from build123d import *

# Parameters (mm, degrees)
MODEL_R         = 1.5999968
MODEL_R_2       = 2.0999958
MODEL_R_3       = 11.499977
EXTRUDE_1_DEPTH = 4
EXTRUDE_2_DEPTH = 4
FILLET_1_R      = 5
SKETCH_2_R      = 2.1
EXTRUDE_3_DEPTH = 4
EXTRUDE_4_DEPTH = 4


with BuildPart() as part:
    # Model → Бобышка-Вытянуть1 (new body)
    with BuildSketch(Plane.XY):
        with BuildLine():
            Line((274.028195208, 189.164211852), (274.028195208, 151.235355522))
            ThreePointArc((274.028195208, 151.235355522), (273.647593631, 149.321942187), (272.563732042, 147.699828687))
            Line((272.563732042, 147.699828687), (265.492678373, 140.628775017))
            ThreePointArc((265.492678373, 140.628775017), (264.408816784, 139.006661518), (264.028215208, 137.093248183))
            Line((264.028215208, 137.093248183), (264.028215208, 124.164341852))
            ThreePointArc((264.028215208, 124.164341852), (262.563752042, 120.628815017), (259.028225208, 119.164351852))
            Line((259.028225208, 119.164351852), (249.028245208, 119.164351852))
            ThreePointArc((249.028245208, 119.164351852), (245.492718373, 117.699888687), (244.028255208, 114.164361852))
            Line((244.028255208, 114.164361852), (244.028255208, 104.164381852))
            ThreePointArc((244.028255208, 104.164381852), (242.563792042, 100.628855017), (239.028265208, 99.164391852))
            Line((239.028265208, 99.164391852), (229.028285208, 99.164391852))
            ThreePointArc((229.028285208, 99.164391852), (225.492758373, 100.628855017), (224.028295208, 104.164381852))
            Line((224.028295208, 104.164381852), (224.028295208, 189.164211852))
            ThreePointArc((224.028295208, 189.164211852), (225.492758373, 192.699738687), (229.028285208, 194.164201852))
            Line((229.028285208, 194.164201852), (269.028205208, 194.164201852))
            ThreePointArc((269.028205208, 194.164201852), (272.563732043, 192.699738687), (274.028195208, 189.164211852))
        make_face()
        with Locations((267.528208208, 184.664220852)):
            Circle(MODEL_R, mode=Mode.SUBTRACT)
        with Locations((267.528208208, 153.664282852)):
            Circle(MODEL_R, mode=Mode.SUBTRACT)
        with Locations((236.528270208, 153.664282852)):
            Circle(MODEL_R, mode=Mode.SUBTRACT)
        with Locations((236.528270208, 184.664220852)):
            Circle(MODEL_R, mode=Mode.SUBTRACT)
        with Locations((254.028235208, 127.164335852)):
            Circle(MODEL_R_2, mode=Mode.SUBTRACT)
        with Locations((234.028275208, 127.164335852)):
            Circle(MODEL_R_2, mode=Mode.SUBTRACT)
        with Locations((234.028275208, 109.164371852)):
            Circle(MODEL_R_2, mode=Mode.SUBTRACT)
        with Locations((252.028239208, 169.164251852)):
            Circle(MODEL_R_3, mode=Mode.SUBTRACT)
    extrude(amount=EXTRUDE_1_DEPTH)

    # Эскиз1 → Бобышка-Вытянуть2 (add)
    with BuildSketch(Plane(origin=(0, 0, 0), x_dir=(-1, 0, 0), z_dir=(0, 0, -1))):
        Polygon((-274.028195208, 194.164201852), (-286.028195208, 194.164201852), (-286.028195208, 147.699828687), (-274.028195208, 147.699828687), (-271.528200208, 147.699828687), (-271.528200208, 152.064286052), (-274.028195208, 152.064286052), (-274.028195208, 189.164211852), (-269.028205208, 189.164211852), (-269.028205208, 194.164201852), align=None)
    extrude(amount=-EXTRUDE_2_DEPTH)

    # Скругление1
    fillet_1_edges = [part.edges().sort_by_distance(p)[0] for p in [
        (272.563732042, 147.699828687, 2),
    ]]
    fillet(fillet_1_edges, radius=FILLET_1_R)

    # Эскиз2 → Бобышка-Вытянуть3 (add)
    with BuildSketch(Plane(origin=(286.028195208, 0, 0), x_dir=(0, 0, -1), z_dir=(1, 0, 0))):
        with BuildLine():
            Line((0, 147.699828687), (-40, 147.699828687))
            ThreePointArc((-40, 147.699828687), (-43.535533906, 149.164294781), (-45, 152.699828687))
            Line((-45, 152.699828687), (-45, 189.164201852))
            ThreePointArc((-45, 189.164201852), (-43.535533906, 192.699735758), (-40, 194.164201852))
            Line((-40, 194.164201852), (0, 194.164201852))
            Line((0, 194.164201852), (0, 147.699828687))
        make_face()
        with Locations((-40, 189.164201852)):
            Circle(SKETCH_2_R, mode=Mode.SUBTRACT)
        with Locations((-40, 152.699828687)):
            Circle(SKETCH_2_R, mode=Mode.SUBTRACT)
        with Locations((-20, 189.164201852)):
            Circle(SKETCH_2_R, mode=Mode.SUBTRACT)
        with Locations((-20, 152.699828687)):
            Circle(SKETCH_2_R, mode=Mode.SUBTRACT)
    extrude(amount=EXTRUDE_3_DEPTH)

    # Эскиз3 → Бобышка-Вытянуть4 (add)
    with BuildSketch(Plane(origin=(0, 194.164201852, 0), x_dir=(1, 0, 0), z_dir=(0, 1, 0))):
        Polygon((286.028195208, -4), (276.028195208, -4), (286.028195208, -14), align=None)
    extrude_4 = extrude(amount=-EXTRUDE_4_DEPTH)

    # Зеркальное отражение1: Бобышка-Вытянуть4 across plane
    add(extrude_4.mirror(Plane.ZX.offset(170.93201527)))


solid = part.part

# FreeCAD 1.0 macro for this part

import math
import FreeCAD as App
import Part
import Sketcher
Q = App.Units.Quantity


def edges_at(feature, points):
    """Names of the edges that pass closest to the given points."""
    edges = feature.Shape.Edges
    near = lambda p: min(range(len(edges)), key=lambda i: edges[i].distToShape(Part.Vertex(*p))[0])
    return sorted({f"Edge{near(p) + 1}" for p in points})


def add_polygon(sketch, points):
    """Adds a closed chain of lines whose ends are joined by coincident constraints."""
    first, n = sketch.GeometryCount, len(points)
    for a, b in zip(points, points[1:] + points[:1]):
        sketch.addGeometry(Part.LineSegment(App.Vector(*a, 0), App.Vector(*b, 0)), False)
    for i in range(n):
        sketch.addConstraint(Sketcher.Constraint("Coincident", first + i, 2, first + (i + 1) % n, 1))

doc = App.newDocument("Part")
body = doc.addObject("PartDesign::Body", "Body")

sketch1 = body.newObject("Sketcher::SketchObject", "Sketch")
sketch1.AttachmentSupport = (doc.getObject("XY_Plane"), [""])
sketch1.MapMode = "FlatFace"
sketch1.addGeometry(Part.LineSegment(App.Vector(274.028195, 151.235356, 0), App.Vector(274.028195, 189.164212, 0)), False)
sketch1.addGeometry(Part.ArcOfCircle(Part.Circle(App.Vector(269.028205, 189.164212, 0), App.Vector(0, 0, 1), 4.99999), math.radians(0), math.radians(90)), False)
sketch1.addGeometry(Part.LineSegment(App.Vector(269.028205, 194.164202, 0), App.Vector(229.028285, 194.164202, 0)), False)
sketch1.addGeometry(Part.ArcOfCircle(Part.Circle(App.Vector(229.028285, 189.164212, 0), App.Vector(0, 0, 1), 4.99999), math.radians(90), math.radians(180)), False)
sketch1.addGeometry(Part.LineSegment(App.Vector(224.028295, 189.164212, 0), App.Vector(224.028295, 104.164382, 0)), False)
sketch1.addGeometry(Part.ArcOfCircle(Part.Circle(App.Vector(229.028285, 104.164382, 0), App.Vector(0, 0, 1), 4.99999), math.radians(180), math.radians(270)), False)
sketch1.addGeometry(Part.LineSegment(App.Vector(229.028285, 99.164392, 0), App.Vector(239.028265, 99.164392, 0)), False)
sketch1.addGeometry(Part.ArcOfCircle(Part.Circle(App.Vector(239.028265, 104.164382, 0), App.Vector(0, 0, 1), 4.99999), math.radians(-90), math.radians(0)), False)
sketch1.addGeometry(Part.LineSegment(App.Vector(244.028255, 104.164382, 0), App.Vector(244.028255, 114.164362, 0)), False)
sketch1.addGeometry(Part.ArcOfCircle(Part.Circle(App.Vector(249.028245, 114.164362, 0), App.Vector(0, 0, 1), 4.99999), math.radians(90), math.radians(180)), False)
sketch1.addGeometry(Part.LineSegment(App.Vector(249.028245, 119.164352, 0), App.Vector(259.028225, 119.164352, 0)), False)
sketch1.addGeometry(Part.ArcOfCircle(Part.Circle(App.Vector(259.028225, 124.164342, 0), App.Vector(0, 0, 1), 4.99999), math.radians(-90), math.radians(0)), False)
sketch1.addGeometry(Part.LineSegment(App.Vector(264.028215, 124.164342, 0), App.Vector(264.028215, 137.093248, 0)), False)
sketch1.addGeometry(Part.ArcOfCircle(Part.Circle(App.Vector(269.028205, 137.093248, 0), App.Vector(0, 0, 1), 4.99999), math.radians(135), math.radians(180)), False)
sketch1.addGeometry(Part.LineSegment(App.Vector(265.492678, 140.628775, 0), App.Vector(272.563732, 147.699829, 0)), False)
sketch1.addGeometry(Part.ArcOfCircle(Part.Circle(App.Vector(269.028205, 151.235356, 0), App.Vector(0, 0, 1), 4.99999), math.radians(-45), math.radians(0)), False)
sketch1.addGeometry(Part.Circle(App.Vector(254.028235, 127.164336, 0), App.Vector(0, 0, 1), 2.099996), False)
sketch1.addGeometry(Part.Circle(App.Vector(234.028275, 109.164372, 0), App.Vector(0, 0, 1), 2.099996), False)
sketch1.addGeometry(Part.Circle(App.Vector(234.028275, 127.164336, 0), App.Vector(0, 0, 1), 2.099996), False)
sketch1.addGeometry(Part.Circle(App.Vector(267.528208, 153.664283, 0), App.Vector(0, 0, 1), 1.599997), False)
sketch1.addGeometry(Part.Circle(App.Vector(267.528208, 184.664221, 0), App.Vector(0, 0, 1), 1.599997), False)
sketch1.addGeometry(Part.Circle(App.Vector(252.028239, 169.164252, 0), App.Vector(0, 0, 1), 11.499977), False)
sketch1.addGeometry(Part.Circle(App.Vector(236.52827, 153.664283, 0), App.Vector(0, 0, 1), 1.599997), False)
sketch1.addGeometry(Part.Circle(App.Vector(236.52827, 184.664221, 0), App.Vector(0, 0, 1), 1.599997), False)
sketch1.addConstraint(Sketcher.Constraint("Tangent", 0, 2, 1, 1))
sketch1.addConstraint(Sketcher.Constraint("Tangent", 1, 2, 2, 1))
sketch1.addConstraint(Sketcher.Constraint("Tangent", 2, 2, 3, 1))
sketch1.addConstraint(Sketcher.Constraint("Tangent", 3, 2, 4, 1))
sketch1.addConstraint(Sketcher.Constraint("Tangent", 4, 2, 5, 1))
sketch1.addConstraint(Sketcher.Constraint("Tangent", 5, 2, 6, 1))
sketch1.addConstraint(Sketcher.Constraint("Tangent", 6, 2, 7, 1))
sketch1.addConstraint(Sketcher.Constraint("Tangent", 7, 2, 8, 1))
sketch1.addConstraint(Sketcher.Constraint("Tangent", 8, 2, 9, 2))
sketch1.addConstraint(Sketcher.Constraint("Tangent", 9, 1, 10, 1))
sketch1.addConstraint(Sketcher.Constraint("Tangent", 10, 2, 11, 1))
sketch1.addConstraint(Sketcher.Constraint("Tangent", 11, 2, 12, 1))
sketch1.addConstraint(Sketcher.Constraint("Tangent", 12, 2, 13, 2))
sketch1.addConstraint(Sketcher.Constraint("Tangent", 13, 1, 14, 1))
sketch1.addConstraint(Sketcher.Constraint("Tangent", 14, 2, 15, 1))
sketch1.addConstraint(Sketcher.Constraint("Tangent", 15, 2, 0, 1))
sketch1.addConstraint(Sketcher.Constraint("Vertical", 0))
sketch1.addConstraint(Sketcher.Constraint("Horizontal", 2))
sketch1.addConstraint(Sketcher.Constraint("Vertical", 4))
sketch1.addConstraint(Sketcher.Constraint("Horizontal", 6))
sketch1.addConstraint(Sketcher.Constraint("Vertical", 8))
sketch1.addConstraint(Sketcher.Constraint("Horizontal", 10))
sketch1.addConstraint(Sketcher.Constraint("Vertical", 12))
sketch1.addConstraint(Sketcher.Constraint("Equal", 1, 3))
sketch1.addConstraint(Sketcher.Constraint("Equal", 3, 5))
sketch1.addConstraint(Sketcher.Constraint("Equal", 5, 7))
sketch1.addConstraint(Sketcher.Constraint("Equal", 7, 9))
sketch1.addConstraint(Sketcher.Constraint("Equal", 9, 11))
sketch1.addConstraint(Sketcher.Constraint("Equal", 11, 13))
sketch1.addConstraint(Sketcher.Constraint("Equal", 13, 15))
sketch1.addConstraint(Sketcher.Constraint("Equal", 16, 17))
sketch1.addConstraint(Sketcher.Constraint("Equal", 17, 18))
sketch1.addConstraint(Sketcher.Constraint("Equal", 19, 20))
sketch1.addConstraint(Sketcher.Constraint("Equal", 20, 22))
sketch1.addConstraint(Sketcher.Constraint("Equal", 22, 23))
sketch1.addConstraint(Sketcher.Constraint("Horizontal", 16, 3, 18, 3))
sketch1.addConstraint(Sketcher.Constraint("Horizontal", 19, 3, 22, 3))
sketch1.addConstraint(Sketcher.Constraint("Horizontal", 20, 3, 23, 3))
sketch1.addConstraint(Sketcher.Constraint("Vertical", 1, 3, 13, 3))
sketch1.addConstraint(Sketcher.Constraint("Vertical", 17, 3, 18, 3))
sketch1.addConstraint(Sketcher.Constraint("Vertical", 19, 3, 20, 3))
sketch1.addConstraint(Sketcher.Constraint("Vertical", 22, 3, 23, 3))
sketch1.addConstraint(Sketcher.Constraint("Equal", 6, 10))
sketch1.addConstraint(Sketcher.Constraint("Equal", 10, 8))
sketch1.addConstraint(Sketcher.Constraint("Angle", 14, Q("45 deg")))
sketch1.addConstraint(Sketcher.Constraint("Diameter", 16, Q("4.199992 mm")))
sketch1.addConstraint(Sketcher.Constraint("Radius", 1, Q("4.99999 mm")))
sketch1.addConstraint(Sketcher.Constraint("Diameter", 19, Q("3.199994 mm")))
sketch1.addConstraint(Sketcher.Constraint("Diameter", 21, Q("22.999954 mm")))
sketch1.addConstraint(Sketcher.Constraint("DistanceX", 2, 2, 2, 1, Q("39.99992 mm")))
sketch1.addConstraint(Sketcher.Constraint("DistanceY", 4, 2, 4, 1, Q("84.99983 mm")))
sketch1.addConstraint(Sketcher.Constraint("DistanceY", -1, 1, 1, 2, Q("194.164202 mm")))
sketch1.addConstraint(Sketcher.Constraint("DistanceY", 0, 1, 0, 2, Q("37.928856 mm")))
sketch1.addConstraint(Sketcher.Constraint("DistanceY", -1, 1, 17, 3, Q("109.164372 mm")))
sketch1.addConstraint(Sketcher.Constraint("DistanceX", -1, 1, 19, 3, Q("267.528208 mm")))
sketch1.addConstraint(Sketcher.Constraint("DistanceY", -1, 1, 20, 3, Q("184.664221 mm")))
sketch1.addConstraint(Sketcher.Constraint("DistanceX", -1, 1, 21, 3, Q("252.028239 mm")))
sketch1.addConstraint(Sketcher.Constraint("DistanceY", -1, 1, 21, 3, Q("169.164252 mm")))
sketch1.addConstraint(Sketcher.Constraint("DistanceX", -1, 1, 22, 3, Q("236.52827 mm")))
sketch1.addConstraint(Sketcher.Constraint("DistanceX", -1, 1, 13, 1, Q("265.492678 mm")))
sketch1.addConstraint(Sketcher.Constraint("DistanceX", 16, 3, 11, 3, Q("4.99999 mm")))
sketch1.addConstraint(Sketcher.Constraint("DistanceY", 16, 3, 15, 3, Q("24.07102 mm")))
sketch1.addConstraint(Sketcher.Constraint("DistanceX", 17, 3, 7, 3, Q("4.99999 mm")))
sketch1.addConstraint(Sketcher.Constraint("DistanceY", 11, 3, 19, 3, Q("29.499941 mm")))
pad1 = body.newObject("PartDesign::Pad", "Pad")
pad1.Profile = sketch1
pad1.Length = 4

sketch2 = body.newObject("Sketcher::SketchObject", "Sketch001")
sketch2.AttachmentSupport = (doc.getObject("XY_Plane"), [""])
sketch2.MapMode = "FlatFace"
add_polygon(sketch2, [(286.028195, 194.164202), (286.028195, 147.699829), (271.5282, 147.699829), (271.5282, 152.064286), (274.028195, 152.064286), (274.028195, 189.164212), (269.028205, 189.164212), (269.028205, 194.164202)])
sketch2.addConstraint(Sketcher.Constraint("Vertical", 0))
sketch2.addConstraint(Sketcher.Constraint("Horizontal", 1))
sketch2.addConstraint(Sketcher.Constraint("Vertical", 2))
sketch2.addConstraint(Sketcher.Constraint("Horizontal", 3))
sketch2.addConstraint(Sketcher.Constraint("Vertical", 4))
sketch2.addConstraint(Sketcher.Constraint("Horizontal", 5))
sketch2.addConstraint(Sketcher.Constraint("Vertical", 6))
sketch2.addConstraint(Sketcher.Constraint("Horizontal", 7))
sketch2.addConstraint(Sketcher.Constraint("Equal", 5, 6))
sketch2.addConstraint(Sketcher.Constraint("DistanceX", 3, 2, 0, 2, Q("12 mm")))
sketch2.addConstraint(Sketcher.Constraint("DistanceX", 5, 2, 5, 1, Q("4.99999 mm")))
sketch2.addConstraint(Sketcher.Constraint("DistanceX", -1, 1, 1, 2, Q("271.5282 mm")))
sketch2.addConstraint(Sketcher.Constraint("DistanceY", -1, 1, 6, 2, Q("194.164202 mm")))
sketch2.addConstraint(Sketcher.Constraint("DistanceX", 1, 2, 1, 1, Q("14.499995 mm")))
sketch2.addConstraint(Sketcher.Constraint("DistanceY", 0, 2, 0, 1, Q("46.464373 mm")))
sketch2.addConstraint(Sketcher.Constraint("DistanceY", 2, 1, 2, 2, Q("4.364457 mm")))
pad2 = body.newObject("PartDesign::Pad", "Pad001")
pad2.Profile = sketch2
pad2.Length = 4
doc.recompute()

fillet = body.newObject("PartDesign::Fillet", "Fillet")
fillet.Base = (pad2, edges_at(pad2, [(272.564, 147.7, 2)]))
fillet.Radius = 5

sketch3 = body.newObject("Sketcher::SketchObject", "Sketch002")
sketch3.AttachmentSupport = (doc.getObject("YZ_Plane"), [""])
sketch3.MapMode = "FlatFace"
sketch3.AttachmentOffset = App.Placement(App.Vector(0, 0, 286.028195), App.Rotation())
sketch3.addGeometry(Part.LineSegment(App.Vector(147.699829, 40, 0), App.Vector(147.699829, 0, 0)), False)
sketch3.addGeometry(Part.LineSegment(App.Vector(147.699829, 0, 0), App.Vector(194.164202, 0, 0)), False)
sketch3.addGeometry(Part.LineSegment(App.Vector(194.164202, 0, 0), App.Vector(194.164202, 40, 0)), False)
sketch3.addGeometry(Part.ArcOfCircle(Part.Circle(App.Vector(189.164202, 40, 0), App.Vector(0, 0, 1), 5), math.radians(0), math.radians(90)), False)
sketch3.addGeometry(Part.LineSegment(App.Vector(189.164202, 45, 0), App.Vector(152.699829, 45, 0)), False)
sketch3.addGeometry(Part.ArcOfCircle(Part.Circle(App.Vector(152.699829, 40, 0), App.Vector(0, 0, 1), 5), math.radians(90), math.radians(180)), False)
sketch3.addGeometry(Part.Circle(App.Vector(152.699829, 20, 0), App.Vector(0, 0, 1), 2.1), False)
sketch3.addGeometry(Part.Circle(App.Vector(152.699829, 40, 0), App.Vector(0, 0, 1), 2.1), False)
sketch3.addGeometry(Part.Circle(App.Vector(189.164202, 20, 0), App.Vector(0, 0, 1), 2.1), False)
sketch3.addGeometry(Part.Circle(App.Vector(189.164202, 40, 0), App.Vector(0, 0, 1), 2.1), False)
sketch3.addConstraint(Sketcher.Constraint("Coincident", 0, 2, 1, 1))
sketch3.addConstraint(Sketcher.Constraint("Coincident", 1, 2, 2, 1))
sketch3.addConstraint(Sketcher.Constraint("Tangent", 2, 2, 3, 1))
sketch3.addConstraint(Sketcher.Constraint("Tangent", 3, 2, 4, 1))
sketch3.addConstraint(Sketcher.Constraint("Tangent", 4, 2, 5, 1))
sketch3.addConstraint(Sketcher.Constraint("Tangent", 5, 2, 0, 1))
sketch3.addConstraint(Sketcher.Constraint("Vertical", 0))
sketch3.addConstraint(Sketcher.Constraint("Horizontal", 1))
sketch3.addConstraint(Sketcher.Constraint("Vertical", 2))
sketch3.addConstraint(Sketcher.Constraint("Horizontal", 4))
sketch3.addConstraint(Sketcher.Constraint("Coincident", 7, 3, 5, 3))
sketch3.addConstraint(Sketcher.Constraint("Coincident", 9, 3, 3, 3))
sketch3.addConstraint(Sketcher.Constraint("Equal", 3, 5))
sketch3.addConstraint(Sketcher.Constraint("Equal", 6, 7))
sketch3.addConstraint(Sketcher.Constraint("Equal", 7, 8))
sketch3.addConstraint(Sketcher.Constraint("Equal", 8, 9))
sketch3.addConstraint(Sketcher.Constraint("PointOnObject", 0, 2, -1))
sketch3.addConstraint(Sketcher.Constraint("Horizontal", 6, 3, 8, 3))
sketch3.addConstraint(Sketcher.Constraint("Vertical", 5, 3, 6, 3))
sketch3.addConstraint(Sketcher.Constraint("Vertical", 3, 3, 8, 3))
sketch3.addConstraint(Sketcher.Constraint("Radius", 3, Q("5 mm")))
sketch3.addConstraint(Sketcher.Constraint("Diameter", 6, Q("4.2 mm")))
sketch3.addConstraint(Sketcher.Constraint("DistanceY", 0, 2, 0, 1, Q("40 mm")))
sketch3.addConstraint(Sketcher.Constraint("DistanceY", -1, 1, 6, 3, Q("20 mm")))
sketch3.addConstraint(Sketcher.Constraint("DistanceX", -1, 1, 3, 3, Q("189.164202 mm")))
sketch3.addConstraint(Sketcher.Constraint("DistanceX", 1, 1, 1, 2, Q("46.464373 mm")))
pad3 = body.newObject("PartDesign::Pad", "Pad002")
pad3.Profile = sketch3
pad3.Length = 4

sketch4 = body.newObject("Sketcher::SketchObject", "Sketch003")
sketch4.AttachmentSupport = (doc.getObject("XZ_Plane"), [""])
sketch4.MapMode = "FlatFace"
sketch4.AttachmentOffset = App.Placement(App.Vector(0, 0, -194.164202), App.Rotation())
add_polygon(sketch4, [(286.028195, 4), (276.028195, 4), (286.028195, 14)])
sketch4.addConstraint(Sketcher.Constraint("Horizontal", 0))
sketch4.addConstraint(Sketcher.Constraint("Vertical", 2))
sketch4.addConstraint(Sketcher.Constraint("Equal", 0, 2))
sketch4.addConstraint(Sketcher.Constraint("DistanceX", 0, 2, 0, 1, Q("10 mm")))
sketch4.addConstraint(Sketcher.Constraint("DistanceY", -1, 1, 0, 2, Q("4 mm")))
sketch4.addConstraint(Sketcher.Constraint("DistanceX", -1, 1, 0, 2, Q("276.028195 mm")))
pad4 = body.newObject("PartDesign::Pad", "Pad003")
pad4.Profile = sketch4
pad4.Length = 4
doc.recompute()

datumplane = body.newObject("PartDesign::Plane", "DatumPlane")
datumplane.AttachmentSupport = (doc.getObject("XZ_Plane"), [""])
datumplane.MapMode = "FlatFace"
datumplane.AttachmentOffset = App.Placement(App.Vector(0, 0, -170.932015), App.Rotation())
mirrored = body.newObject("PartDesign::Mirrored", "Mirrored")
mirrored.Originals = [pad4]
mirrored.MirrorPlane = (datumplane, [""])
body.Tip = mirrored

doc.recompute()
